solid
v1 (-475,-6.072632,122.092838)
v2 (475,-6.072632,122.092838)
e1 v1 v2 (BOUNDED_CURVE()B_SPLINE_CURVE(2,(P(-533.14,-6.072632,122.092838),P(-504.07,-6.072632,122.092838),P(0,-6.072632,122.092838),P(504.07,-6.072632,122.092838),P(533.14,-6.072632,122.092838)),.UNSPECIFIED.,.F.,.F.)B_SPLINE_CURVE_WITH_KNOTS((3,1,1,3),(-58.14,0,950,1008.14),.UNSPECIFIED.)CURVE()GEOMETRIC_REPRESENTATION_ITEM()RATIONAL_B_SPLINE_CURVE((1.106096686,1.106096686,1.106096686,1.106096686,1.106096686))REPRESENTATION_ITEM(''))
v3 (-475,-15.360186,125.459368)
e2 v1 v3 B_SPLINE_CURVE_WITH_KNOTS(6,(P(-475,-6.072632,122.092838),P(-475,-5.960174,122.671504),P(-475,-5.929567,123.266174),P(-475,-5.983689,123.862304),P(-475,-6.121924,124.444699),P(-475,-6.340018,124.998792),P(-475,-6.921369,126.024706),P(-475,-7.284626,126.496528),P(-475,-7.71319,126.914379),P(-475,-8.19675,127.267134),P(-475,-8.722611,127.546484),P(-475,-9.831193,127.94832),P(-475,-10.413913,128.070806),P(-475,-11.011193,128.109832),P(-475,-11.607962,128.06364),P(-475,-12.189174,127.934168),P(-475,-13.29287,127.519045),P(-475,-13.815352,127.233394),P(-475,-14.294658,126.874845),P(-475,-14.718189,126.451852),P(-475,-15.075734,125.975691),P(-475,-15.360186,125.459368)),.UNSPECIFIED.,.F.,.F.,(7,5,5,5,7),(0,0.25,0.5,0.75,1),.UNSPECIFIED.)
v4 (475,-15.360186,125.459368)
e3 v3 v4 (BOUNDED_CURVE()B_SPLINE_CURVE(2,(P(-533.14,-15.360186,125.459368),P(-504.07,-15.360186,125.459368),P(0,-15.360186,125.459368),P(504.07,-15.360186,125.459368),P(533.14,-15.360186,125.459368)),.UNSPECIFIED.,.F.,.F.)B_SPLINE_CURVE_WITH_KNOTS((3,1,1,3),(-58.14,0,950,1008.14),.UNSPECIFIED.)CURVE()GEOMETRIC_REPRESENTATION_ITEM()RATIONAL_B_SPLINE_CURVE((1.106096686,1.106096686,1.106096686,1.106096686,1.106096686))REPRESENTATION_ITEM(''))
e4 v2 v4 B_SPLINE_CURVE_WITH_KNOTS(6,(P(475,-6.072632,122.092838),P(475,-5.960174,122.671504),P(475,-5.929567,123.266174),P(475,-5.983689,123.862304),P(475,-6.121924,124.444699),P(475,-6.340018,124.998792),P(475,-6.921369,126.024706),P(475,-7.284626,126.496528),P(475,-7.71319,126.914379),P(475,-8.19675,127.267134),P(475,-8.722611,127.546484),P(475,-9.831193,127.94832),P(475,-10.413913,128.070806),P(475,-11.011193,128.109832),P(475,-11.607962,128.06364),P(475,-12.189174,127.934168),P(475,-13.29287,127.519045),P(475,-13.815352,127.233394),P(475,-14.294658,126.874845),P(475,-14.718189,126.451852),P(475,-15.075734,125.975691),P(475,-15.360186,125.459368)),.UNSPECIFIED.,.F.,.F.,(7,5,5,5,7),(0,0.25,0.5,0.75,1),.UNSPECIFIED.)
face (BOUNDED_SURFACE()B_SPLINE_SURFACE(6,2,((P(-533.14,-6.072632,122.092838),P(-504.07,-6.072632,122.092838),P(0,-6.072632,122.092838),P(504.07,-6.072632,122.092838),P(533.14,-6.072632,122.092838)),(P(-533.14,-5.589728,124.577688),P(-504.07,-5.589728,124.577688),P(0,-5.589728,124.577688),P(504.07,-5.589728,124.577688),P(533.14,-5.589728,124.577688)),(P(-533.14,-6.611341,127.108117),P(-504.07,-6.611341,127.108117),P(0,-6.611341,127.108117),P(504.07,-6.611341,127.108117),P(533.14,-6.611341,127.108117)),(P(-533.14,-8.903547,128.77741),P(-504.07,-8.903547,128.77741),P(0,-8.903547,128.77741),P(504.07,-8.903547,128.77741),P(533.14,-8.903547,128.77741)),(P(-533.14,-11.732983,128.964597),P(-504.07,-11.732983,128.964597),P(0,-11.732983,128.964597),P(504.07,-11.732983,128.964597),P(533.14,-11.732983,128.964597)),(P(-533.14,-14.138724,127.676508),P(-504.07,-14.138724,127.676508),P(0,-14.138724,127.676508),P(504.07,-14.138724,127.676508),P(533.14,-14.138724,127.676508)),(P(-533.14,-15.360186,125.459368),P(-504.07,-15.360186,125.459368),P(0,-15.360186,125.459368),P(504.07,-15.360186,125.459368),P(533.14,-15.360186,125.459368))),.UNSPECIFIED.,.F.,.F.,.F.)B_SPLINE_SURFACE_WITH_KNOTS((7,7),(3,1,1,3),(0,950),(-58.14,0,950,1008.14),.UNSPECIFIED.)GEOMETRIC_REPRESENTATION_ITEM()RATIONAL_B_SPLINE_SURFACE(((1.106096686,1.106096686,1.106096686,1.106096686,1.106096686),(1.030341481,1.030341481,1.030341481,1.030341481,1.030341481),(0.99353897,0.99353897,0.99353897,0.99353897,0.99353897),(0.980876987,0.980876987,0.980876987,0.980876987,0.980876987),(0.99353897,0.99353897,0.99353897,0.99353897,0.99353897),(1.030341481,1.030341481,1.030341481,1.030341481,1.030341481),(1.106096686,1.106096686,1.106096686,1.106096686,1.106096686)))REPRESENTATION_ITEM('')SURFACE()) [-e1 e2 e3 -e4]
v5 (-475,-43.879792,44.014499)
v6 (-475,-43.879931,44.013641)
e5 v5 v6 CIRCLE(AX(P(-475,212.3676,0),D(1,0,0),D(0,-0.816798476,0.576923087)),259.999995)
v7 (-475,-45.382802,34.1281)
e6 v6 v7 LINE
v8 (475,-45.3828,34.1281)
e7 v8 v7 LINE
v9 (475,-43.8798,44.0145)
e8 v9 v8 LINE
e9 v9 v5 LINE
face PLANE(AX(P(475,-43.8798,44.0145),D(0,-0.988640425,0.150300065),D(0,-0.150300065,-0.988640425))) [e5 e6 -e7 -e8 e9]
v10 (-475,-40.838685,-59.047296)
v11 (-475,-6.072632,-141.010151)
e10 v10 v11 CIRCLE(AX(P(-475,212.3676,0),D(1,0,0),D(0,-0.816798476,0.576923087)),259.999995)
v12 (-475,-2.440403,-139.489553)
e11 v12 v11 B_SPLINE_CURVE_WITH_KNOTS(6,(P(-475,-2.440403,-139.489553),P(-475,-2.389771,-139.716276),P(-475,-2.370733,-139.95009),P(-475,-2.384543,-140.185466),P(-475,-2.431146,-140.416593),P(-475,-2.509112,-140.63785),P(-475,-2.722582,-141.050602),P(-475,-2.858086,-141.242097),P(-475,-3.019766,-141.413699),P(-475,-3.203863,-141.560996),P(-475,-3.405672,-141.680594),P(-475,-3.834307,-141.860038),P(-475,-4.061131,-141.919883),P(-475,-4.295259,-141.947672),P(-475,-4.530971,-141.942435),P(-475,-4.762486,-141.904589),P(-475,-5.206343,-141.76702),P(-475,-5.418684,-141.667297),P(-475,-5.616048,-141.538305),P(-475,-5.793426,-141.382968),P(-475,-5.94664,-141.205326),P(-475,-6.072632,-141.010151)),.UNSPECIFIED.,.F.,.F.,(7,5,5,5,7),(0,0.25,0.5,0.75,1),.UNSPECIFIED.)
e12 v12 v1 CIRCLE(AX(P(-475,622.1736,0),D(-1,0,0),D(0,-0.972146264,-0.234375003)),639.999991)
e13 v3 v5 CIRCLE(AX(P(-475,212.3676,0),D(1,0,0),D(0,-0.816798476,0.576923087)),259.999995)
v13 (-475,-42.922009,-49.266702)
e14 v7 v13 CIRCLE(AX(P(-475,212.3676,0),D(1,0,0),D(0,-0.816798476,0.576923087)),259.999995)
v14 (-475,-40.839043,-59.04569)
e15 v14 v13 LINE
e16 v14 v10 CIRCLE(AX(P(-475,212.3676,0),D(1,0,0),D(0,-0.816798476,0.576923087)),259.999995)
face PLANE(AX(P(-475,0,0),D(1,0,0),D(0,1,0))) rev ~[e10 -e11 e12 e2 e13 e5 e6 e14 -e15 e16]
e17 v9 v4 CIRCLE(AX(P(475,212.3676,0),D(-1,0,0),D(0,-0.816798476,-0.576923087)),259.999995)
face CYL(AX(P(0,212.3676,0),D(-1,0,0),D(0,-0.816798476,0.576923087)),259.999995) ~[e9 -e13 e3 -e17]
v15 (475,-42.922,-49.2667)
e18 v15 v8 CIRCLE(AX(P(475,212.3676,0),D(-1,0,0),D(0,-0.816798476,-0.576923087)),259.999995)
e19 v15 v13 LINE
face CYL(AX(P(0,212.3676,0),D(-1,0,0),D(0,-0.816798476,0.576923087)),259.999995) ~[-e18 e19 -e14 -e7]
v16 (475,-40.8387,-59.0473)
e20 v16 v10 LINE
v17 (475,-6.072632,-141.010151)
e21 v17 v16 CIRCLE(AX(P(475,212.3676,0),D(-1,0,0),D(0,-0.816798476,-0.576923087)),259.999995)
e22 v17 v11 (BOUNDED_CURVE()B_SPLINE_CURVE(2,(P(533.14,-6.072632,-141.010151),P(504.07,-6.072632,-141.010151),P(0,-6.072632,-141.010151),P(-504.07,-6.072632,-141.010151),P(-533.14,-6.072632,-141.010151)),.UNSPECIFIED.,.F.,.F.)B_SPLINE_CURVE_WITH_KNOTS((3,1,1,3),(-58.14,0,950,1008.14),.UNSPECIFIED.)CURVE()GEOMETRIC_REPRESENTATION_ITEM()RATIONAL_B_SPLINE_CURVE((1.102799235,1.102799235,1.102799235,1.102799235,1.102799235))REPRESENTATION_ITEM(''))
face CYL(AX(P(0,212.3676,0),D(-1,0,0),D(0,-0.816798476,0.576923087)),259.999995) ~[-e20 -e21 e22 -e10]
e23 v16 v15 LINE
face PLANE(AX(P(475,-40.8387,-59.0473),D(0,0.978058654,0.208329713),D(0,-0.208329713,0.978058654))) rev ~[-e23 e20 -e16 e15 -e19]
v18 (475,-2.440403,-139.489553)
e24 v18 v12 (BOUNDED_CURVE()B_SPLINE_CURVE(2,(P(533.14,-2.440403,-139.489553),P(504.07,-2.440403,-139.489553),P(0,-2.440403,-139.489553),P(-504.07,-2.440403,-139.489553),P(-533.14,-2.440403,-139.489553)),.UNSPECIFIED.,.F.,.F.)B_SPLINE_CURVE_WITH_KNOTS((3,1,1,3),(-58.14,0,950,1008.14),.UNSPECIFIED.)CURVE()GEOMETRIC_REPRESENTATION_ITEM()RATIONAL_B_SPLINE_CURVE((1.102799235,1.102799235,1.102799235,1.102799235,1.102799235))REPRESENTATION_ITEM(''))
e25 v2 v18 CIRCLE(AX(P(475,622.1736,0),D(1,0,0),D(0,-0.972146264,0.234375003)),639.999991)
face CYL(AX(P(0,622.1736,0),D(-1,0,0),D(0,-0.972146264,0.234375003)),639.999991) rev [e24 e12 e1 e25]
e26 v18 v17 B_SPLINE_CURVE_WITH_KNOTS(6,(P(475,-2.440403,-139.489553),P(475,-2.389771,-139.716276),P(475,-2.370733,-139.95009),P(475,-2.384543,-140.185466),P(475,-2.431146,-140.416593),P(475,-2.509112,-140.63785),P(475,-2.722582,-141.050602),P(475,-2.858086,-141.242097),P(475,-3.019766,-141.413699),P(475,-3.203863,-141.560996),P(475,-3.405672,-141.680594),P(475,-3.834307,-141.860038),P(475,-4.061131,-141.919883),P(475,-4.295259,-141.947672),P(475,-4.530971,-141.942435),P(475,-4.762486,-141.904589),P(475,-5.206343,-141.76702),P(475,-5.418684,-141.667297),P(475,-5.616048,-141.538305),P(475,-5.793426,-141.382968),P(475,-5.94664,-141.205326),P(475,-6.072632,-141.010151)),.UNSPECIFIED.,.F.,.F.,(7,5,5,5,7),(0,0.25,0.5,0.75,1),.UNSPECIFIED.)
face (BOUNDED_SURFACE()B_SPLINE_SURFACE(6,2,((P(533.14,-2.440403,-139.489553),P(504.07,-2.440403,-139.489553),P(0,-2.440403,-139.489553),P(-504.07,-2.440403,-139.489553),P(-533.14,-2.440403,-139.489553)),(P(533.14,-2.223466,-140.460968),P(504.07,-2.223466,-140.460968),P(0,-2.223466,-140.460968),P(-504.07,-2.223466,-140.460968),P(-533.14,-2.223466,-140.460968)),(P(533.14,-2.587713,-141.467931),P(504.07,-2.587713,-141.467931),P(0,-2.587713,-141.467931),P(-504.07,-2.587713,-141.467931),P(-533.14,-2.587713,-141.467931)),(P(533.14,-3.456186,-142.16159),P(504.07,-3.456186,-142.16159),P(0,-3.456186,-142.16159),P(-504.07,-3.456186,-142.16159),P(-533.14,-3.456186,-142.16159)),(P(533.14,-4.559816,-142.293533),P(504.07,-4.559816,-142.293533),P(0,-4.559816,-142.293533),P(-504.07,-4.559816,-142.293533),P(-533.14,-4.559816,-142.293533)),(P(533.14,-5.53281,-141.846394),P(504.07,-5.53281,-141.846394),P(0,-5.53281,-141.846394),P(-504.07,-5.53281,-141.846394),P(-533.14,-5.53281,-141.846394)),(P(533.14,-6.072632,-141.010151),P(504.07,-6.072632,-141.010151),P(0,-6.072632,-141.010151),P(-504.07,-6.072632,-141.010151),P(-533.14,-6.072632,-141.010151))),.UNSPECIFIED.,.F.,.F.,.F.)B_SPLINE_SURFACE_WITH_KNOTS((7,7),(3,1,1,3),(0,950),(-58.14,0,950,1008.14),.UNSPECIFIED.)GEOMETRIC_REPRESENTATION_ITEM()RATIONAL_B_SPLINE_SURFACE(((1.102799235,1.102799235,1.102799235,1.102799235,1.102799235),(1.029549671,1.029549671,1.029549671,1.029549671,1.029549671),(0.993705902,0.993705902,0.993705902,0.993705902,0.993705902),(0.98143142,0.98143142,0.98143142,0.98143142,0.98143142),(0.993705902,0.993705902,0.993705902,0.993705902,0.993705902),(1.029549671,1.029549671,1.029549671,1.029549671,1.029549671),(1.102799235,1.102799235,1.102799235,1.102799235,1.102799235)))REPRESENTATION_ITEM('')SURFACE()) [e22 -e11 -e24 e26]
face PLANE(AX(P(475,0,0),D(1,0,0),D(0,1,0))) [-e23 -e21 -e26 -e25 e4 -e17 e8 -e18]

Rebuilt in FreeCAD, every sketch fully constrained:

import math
import FreeCAD as App
import Part
import Sketcher
from FreeCAD import Vector


def edges_at(feature, points):
    """Names of the edges that pass closest to the given points."""
    edges = feature.Shape.Edges
    near = lambda p: min(range(len(edges)), key=lambda i: edges[i].distToShape(Part.Vertex(*p))[0])
    return sorted({f"Edge{near(p) + 1}" for p in points})

doc = App.newDocument("Part")
body = doc.addObject("PartDesign::Body", "Body")

# Sketch on YZ plane
sketch1 = body.newObject("Sketcher::SketchObject", "Sketch")
sketch1.AttachmentSupport = (doc.getObject("YZ_Plane"), [""])
sketch1.MapMode = "FlatFace"
sketch1.addGeometry([
    Part.ArcOfCircle(Part.Circle(Vector(212.3676, 0, 0), Vector(0, 0, 1), 259.999995), math.radians(144.765581), math.radians(215.234419)),
    Part.ArcOfCircle(Part.Circle(Vector(622.1736, 0, 0), Vector(0, 0, 1), 639.999991), math.radians(166.445216), math.radians(193.554784)),
], False)
sketch1.addConstraint([
    Sketcher.Constraint("Coincident", 0, 1, 1, 1),
    Sketcher.Constraint("Coincident", 1, 2, 0, 2),
    Sketcher.Constraint("Symmetric", 0, 1, 1, 2, -1, 1),
    Sketcher.Constraint("PointOnObject", 0, 3, -1),
    Sketcher.Constraint("Radius", 0, 260.0),
    Sketcher.Constraint("Radius", 1, 640.0),
    Sketcher.Constraint("DistanceY", 1, 2, 0, 1, 300.0),
])
pad1 = body.newObject("PartDesign::Pad", "Pad")
pad1.Profile = sketch1
pad1.Length = 950
pad1.Midplane = True
doc.recompute()

fillet = body.newObject("PartDesign::Fillet", "Fillet")
fillet.Base = (pad1, edges_at(pad1, [(0, 0, 150)]))
fillet.Radius = 5
doc.recompute()

fillet2 = body.newObject("PartDesign::Fillet", "Fillet001")
fillet2.Base = (fillet, edges_at(fillet, [(0, 0, -150)]))
fillet2.Radius = 2

# Sketch on YZ plane
sketch2 = body.newObject("Sketcher::SketchObject", "Sketch001")
sketch2.AttachmentSupport = (doc.getObject("YZ_Plane"), [""])
sketch2.MapMode = "FlatFace"
sketch2.AttachmentOffset = App.Placement(Vector(0, 0, 475), App.Rotation())
sketch2.addGeometry([
    Part.LineSegment(Vector(-40.8387, -59.0473, 0), Vector(-42.922, -49.2667, 0)),
    Part.ArcOfCircle(Part.Circle(Vector(212.3676, 0, 0), Vector(0, 0, 1), 260.000023), math.radians(-169.077133), math.radians(-166.873311)),
    Part.LineSegment(Vector(-45.3828, 34.1281, 0), Vector(-43.8798, 44.0145, 0)),
    Part.ArcOfCircle(Part.Circle(Vector(212.3676, 0, 0), Vector(0, 0, 1), 260.000023), math.radians(170.253661), math.radians(172.45748)),
], False)
sketch2.addConstraint([
    Sketcher.Constraint("Coincident", 0, 1, 1, 2),
    Sketcher.Constraint("Coincident", 1, 1, 0, 2),
    Sketcher.Constraint("Coincident", 2, 1, 3, 2),
    Sketcher.Constraint("Coincident", 3, 1, 2, 2),
    Sketcher.Constraint("Coincident", 3, 3, 1, 3),
    Sketcher.Constraint("Equal", 1, 3),
    Sketcher.Constraint("PointOnObject", 1, 3, -1),
    Sketcher.Constraint("Equal", 0, 2),
    Sketcher.Constraint("Distance", 0, 10.0),
    Sketcher.Constraint("Radius", 1, 260.0),
    Sketcher.Constraint("DistanceX", 1, 1, -1, 1, 42.922),
    Sketcher.Constraint("DistanceY", -1, 1, 2, 1, 34.128),
    Sketcher.Constraint("DistanceX", 2, 1, 0, 1, 4.544),
])
pocket1 = body.newObject("PartDesign::Pocket", "Pocket")
pocket1.Profile = sketch2
pocket1.Type = "ThroughAll"

doc.recompute()
